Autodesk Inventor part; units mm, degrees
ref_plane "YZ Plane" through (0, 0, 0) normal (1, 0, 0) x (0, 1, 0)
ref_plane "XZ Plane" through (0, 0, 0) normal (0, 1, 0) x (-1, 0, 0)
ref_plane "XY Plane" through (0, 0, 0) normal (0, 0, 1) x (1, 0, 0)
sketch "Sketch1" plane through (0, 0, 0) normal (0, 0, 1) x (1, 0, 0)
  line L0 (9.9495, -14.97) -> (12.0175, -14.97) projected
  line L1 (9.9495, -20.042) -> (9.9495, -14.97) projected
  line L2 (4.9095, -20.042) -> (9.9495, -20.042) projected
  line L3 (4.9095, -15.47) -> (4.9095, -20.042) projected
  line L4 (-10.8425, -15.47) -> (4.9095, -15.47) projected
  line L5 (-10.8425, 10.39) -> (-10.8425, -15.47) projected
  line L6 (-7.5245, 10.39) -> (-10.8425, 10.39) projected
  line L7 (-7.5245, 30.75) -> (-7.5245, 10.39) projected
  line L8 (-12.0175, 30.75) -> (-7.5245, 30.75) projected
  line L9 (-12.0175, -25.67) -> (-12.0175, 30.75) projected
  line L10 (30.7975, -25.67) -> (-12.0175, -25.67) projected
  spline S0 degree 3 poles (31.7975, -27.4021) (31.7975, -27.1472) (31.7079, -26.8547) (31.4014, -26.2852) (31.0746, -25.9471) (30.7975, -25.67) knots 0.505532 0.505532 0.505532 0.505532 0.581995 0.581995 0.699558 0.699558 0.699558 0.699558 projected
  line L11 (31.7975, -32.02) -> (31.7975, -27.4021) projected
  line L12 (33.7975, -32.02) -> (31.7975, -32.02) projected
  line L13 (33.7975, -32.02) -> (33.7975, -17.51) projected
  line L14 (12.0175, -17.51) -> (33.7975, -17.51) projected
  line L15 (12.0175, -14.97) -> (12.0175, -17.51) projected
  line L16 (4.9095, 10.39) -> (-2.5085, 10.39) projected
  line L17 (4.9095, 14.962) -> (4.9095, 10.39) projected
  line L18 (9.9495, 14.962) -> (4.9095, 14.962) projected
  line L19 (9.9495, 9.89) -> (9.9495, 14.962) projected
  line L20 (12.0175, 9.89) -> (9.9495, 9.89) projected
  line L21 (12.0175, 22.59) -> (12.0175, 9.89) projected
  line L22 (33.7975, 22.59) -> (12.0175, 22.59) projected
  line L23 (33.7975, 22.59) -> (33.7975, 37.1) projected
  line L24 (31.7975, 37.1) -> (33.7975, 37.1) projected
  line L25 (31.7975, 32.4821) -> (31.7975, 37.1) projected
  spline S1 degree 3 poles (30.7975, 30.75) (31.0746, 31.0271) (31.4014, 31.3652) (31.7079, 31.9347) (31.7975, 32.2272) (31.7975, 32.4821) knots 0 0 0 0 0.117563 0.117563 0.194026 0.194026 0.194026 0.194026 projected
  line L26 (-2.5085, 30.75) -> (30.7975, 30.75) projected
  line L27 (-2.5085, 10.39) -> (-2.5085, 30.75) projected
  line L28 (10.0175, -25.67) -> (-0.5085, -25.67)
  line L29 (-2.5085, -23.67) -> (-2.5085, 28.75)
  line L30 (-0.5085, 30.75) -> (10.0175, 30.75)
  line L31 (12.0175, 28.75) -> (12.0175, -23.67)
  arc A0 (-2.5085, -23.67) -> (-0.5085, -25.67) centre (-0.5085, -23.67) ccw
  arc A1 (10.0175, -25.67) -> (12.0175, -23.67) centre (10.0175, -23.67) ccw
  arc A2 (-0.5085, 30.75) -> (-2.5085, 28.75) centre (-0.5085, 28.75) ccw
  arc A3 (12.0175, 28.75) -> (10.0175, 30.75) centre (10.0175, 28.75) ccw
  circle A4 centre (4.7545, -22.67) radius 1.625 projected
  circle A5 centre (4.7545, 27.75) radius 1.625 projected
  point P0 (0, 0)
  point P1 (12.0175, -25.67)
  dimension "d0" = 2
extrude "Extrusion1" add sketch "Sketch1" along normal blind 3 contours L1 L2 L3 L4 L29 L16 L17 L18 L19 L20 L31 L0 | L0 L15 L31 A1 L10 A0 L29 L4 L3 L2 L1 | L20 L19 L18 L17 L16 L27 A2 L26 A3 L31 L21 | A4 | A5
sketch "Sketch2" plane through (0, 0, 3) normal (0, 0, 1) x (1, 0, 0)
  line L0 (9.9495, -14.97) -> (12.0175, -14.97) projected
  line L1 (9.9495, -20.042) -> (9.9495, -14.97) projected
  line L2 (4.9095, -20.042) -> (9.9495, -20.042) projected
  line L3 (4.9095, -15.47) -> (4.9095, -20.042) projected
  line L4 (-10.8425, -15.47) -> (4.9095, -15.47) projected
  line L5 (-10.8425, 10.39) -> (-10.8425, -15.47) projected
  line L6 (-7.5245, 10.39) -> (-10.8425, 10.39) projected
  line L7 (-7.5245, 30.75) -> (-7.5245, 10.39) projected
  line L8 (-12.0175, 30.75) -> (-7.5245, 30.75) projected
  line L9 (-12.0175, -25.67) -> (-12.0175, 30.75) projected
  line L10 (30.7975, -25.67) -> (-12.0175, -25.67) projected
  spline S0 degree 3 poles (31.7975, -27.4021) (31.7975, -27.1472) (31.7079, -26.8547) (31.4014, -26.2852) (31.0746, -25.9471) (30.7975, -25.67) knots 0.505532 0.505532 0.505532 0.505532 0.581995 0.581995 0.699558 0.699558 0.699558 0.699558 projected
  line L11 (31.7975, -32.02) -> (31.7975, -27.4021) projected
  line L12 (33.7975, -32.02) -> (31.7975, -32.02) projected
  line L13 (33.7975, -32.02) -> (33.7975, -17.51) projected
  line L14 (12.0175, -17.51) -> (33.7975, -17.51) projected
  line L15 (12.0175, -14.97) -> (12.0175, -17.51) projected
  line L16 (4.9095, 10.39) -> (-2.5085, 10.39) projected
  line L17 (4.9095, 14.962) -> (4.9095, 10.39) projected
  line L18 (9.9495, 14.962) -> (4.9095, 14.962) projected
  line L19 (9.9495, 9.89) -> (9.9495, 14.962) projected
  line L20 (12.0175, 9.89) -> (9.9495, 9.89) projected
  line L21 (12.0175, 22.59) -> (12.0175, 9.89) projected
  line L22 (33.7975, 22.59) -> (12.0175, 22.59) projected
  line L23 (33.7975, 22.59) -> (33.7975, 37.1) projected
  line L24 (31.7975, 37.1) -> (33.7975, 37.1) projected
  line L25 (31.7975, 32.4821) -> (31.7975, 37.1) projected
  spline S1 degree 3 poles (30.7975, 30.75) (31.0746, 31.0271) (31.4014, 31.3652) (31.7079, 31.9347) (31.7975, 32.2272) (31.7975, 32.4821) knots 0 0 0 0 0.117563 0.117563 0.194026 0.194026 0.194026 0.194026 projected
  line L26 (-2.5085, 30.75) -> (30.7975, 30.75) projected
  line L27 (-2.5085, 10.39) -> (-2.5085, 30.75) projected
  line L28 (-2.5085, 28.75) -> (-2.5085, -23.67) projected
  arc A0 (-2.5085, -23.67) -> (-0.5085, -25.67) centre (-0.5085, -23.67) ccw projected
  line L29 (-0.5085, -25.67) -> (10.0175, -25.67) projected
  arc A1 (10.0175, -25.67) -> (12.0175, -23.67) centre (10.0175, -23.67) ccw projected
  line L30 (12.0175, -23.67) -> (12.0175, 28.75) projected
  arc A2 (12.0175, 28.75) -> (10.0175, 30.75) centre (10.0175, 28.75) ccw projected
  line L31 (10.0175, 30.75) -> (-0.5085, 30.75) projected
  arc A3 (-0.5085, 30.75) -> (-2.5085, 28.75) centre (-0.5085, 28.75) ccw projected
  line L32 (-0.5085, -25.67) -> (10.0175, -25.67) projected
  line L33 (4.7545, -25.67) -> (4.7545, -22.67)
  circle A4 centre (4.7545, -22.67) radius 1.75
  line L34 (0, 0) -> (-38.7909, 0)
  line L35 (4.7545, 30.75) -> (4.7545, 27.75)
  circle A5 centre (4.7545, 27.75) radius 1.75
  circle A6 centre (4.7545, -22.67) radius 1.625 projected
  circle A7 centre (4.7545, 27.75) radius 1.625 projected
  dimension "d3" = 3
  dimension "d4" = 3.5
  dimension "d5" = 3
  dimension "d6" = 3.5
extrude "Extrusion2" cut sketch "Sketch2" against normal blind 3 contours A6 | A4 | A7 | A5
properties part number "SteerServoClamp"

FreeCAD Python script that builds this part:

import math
import FreeCAD as App
import Part
import Sketcher

V = App.Vector
Q = App.Units.Quantity

doc = App.newDocument("Part")
body = doc.addObject("PartDesign::Body", "Body")

sketch1 = body.newObject("Sketcher::SketchObject", "Sketch")
sketch1.AttachmentSupport = (doc.getObject("XY_Plane"), [""])
sketch1.MapMode = "FlatFace"
sketch1.addGeometry(Part.ArcOfCircle(Part.Circle(V(-0.5, -23.7, 0), V(0, 0, 1), 2), math.radians(180), math.radians(270)), False)
sketch1.addGeometry(Part.LineSegment(V(-0.5, -25.7, 0), V(10, -25.7, 0)), False)
sketch1.addGeometry(Part.ArcOfCircle(Part.Circle(V(10, -23.7, 0), V(0, 0, 1), 2), math.radians(-90), math.radians(0)), False)
sketch1.addGeometry(Part.LineSegment(V(12, -23.7, 0), V(12, 28.8, 0)), False)
sketch1.addGeometry(Part.ArcOfCircle(Part.Circle(V(10, 28.8, 0), V(0, 0, 1), 2), math.radians(0), math.radians(90)), False)
sketch1.addGeometry(Part.LineSegment(V(10, 30.8, 0), V(-0.5, 30.8, 0)), False)
sketch1.addGeometry(Part.ArcOfCircle(Part.Circle(V(-0.5, 28.8, 0), V(0, 0, 1), 2), math.radians(90), math.radians(180)), False)
sketch1.addGeometry(Part.LineSegment(V(-2.5, 28.8, 0), V(-2.5, -23.7, 0)), False)
sketch1.addConstraint(Sketcher.Constraint("Tangent", 0, 2, 1, 1))
sketch1.addConstraint(Sketcher.Constraint("Tangent", 1, 2, 2, 1))
sketch1.addConstraint(Sketcher.Constraint("Tangent", 2, 2, 3, 1))
sketch1.addConstraint(Sketcher.Constraint("Tangent", 3, 2, 4, 1))
sketch1.addConstraint(Sketcher.Constraint("Tangent", 4, 2, 5, 1))
sketch1.addConstraint(Sketcher.Constraint("Tangent", 5, 2, 6, 1))
sketch1.addConstraint(Sketcher.Constraint("Tangent", 6, 2, 7, 1))
sketch1.addConstraint(Sketcher.Constraint("Tangent", 7, 2, 0, 1))
sketch1.addConstraint(Sketcher.Constraint("Horizontal", 1))
sketch1.addConstraint(Sketcher.Constraint("Vertical", 3))
sketch1.addConstraint(Sketcher.Constraint("Horizontal", 5))
sketch1.addConstraint(Sketcher.Constraint("Vertical", 7))
sketch1.addConstraint(Sketcher.Constraint("Equal", 0, 2))
sketch1.addConstraint(Sketcher.Constraint("Equal", 2, 4))
sketch1.addConstraint(Sketcher.Constraint("Equal", 4, 6))
sketch1.addConstraint(Sketcher.Constraint("Radius", 0, Q("2 mm")))
sketch1.addConstraint(Sketcher.Constraint("DistanceY", 3, 1, 3, 2, Q("52.42 mm")))
sketch1.addConstraint(Sketcher.Constraint("DistanceX", 1, 1, 1, 2, Q("10.526 mm")))
sketch1.addConstraint(Sketcher.Constraint("DistanceY", 0, 3, -1, 1, Q("23.67 mm")))
sketch1.addConstraint(Sketcher.Constraint("DistanceX", 0, 3, -1, 1, Q("0.5085 mm")))
pad1 = body.newObject("PartDesign::Pad", "Pad")
pad1.Profile = sketch1
pad1.Length = 3

sketch2 = body.newObject("Sketcher::SketchObject", "Sketch001")
sketch2.AttachmentSupport = (doc.getObject("XY_Plane"), [""])
sketch2.MapMode = "FlatFace"
sketch2.AttachmentOffset = App.Placement(V(0, 0, 3), App.Rotation())
sketch2.addGeometry(Part.Circle(V(4.8, -22.7, 0), V(0, 0, 1), 1.8), False)
sketch2.addGeometry(Part.Circle(V(4.8, 27.8, 0), V(0, 0, 1), 1.8), False)
sketch2.addConstraint(Sketcher.Constraint("Equal", 0, 1))
sketch2.addConstraint(Sketcher.Constraint("Vertical", 0, 3, 1, 3))
sketch2.addConstraint(Sketcher.Constraint("Diameter", 0, Q("3.5 mm")))
sketch2.addConstraint(Sketcher.Constraint("DistanceY", 0, 3, -1, 1, Q("22.67 mm")))
sketch2.addConstraint(Sketcher.Constraint("DistanceY", -1, 1, 1, 3, Q("27.75 mm")))
sketch2.addConstraint(Sketcher.Constraint("DistanceX", -1, 1, 0, 3, Q("4.7545 mm")))
pocket1 = body.newObject("PartDesign::Pocket", "Pocket")
pocket1.Profile = sketch2
pocket1.Length = 3

doc.recompute()
